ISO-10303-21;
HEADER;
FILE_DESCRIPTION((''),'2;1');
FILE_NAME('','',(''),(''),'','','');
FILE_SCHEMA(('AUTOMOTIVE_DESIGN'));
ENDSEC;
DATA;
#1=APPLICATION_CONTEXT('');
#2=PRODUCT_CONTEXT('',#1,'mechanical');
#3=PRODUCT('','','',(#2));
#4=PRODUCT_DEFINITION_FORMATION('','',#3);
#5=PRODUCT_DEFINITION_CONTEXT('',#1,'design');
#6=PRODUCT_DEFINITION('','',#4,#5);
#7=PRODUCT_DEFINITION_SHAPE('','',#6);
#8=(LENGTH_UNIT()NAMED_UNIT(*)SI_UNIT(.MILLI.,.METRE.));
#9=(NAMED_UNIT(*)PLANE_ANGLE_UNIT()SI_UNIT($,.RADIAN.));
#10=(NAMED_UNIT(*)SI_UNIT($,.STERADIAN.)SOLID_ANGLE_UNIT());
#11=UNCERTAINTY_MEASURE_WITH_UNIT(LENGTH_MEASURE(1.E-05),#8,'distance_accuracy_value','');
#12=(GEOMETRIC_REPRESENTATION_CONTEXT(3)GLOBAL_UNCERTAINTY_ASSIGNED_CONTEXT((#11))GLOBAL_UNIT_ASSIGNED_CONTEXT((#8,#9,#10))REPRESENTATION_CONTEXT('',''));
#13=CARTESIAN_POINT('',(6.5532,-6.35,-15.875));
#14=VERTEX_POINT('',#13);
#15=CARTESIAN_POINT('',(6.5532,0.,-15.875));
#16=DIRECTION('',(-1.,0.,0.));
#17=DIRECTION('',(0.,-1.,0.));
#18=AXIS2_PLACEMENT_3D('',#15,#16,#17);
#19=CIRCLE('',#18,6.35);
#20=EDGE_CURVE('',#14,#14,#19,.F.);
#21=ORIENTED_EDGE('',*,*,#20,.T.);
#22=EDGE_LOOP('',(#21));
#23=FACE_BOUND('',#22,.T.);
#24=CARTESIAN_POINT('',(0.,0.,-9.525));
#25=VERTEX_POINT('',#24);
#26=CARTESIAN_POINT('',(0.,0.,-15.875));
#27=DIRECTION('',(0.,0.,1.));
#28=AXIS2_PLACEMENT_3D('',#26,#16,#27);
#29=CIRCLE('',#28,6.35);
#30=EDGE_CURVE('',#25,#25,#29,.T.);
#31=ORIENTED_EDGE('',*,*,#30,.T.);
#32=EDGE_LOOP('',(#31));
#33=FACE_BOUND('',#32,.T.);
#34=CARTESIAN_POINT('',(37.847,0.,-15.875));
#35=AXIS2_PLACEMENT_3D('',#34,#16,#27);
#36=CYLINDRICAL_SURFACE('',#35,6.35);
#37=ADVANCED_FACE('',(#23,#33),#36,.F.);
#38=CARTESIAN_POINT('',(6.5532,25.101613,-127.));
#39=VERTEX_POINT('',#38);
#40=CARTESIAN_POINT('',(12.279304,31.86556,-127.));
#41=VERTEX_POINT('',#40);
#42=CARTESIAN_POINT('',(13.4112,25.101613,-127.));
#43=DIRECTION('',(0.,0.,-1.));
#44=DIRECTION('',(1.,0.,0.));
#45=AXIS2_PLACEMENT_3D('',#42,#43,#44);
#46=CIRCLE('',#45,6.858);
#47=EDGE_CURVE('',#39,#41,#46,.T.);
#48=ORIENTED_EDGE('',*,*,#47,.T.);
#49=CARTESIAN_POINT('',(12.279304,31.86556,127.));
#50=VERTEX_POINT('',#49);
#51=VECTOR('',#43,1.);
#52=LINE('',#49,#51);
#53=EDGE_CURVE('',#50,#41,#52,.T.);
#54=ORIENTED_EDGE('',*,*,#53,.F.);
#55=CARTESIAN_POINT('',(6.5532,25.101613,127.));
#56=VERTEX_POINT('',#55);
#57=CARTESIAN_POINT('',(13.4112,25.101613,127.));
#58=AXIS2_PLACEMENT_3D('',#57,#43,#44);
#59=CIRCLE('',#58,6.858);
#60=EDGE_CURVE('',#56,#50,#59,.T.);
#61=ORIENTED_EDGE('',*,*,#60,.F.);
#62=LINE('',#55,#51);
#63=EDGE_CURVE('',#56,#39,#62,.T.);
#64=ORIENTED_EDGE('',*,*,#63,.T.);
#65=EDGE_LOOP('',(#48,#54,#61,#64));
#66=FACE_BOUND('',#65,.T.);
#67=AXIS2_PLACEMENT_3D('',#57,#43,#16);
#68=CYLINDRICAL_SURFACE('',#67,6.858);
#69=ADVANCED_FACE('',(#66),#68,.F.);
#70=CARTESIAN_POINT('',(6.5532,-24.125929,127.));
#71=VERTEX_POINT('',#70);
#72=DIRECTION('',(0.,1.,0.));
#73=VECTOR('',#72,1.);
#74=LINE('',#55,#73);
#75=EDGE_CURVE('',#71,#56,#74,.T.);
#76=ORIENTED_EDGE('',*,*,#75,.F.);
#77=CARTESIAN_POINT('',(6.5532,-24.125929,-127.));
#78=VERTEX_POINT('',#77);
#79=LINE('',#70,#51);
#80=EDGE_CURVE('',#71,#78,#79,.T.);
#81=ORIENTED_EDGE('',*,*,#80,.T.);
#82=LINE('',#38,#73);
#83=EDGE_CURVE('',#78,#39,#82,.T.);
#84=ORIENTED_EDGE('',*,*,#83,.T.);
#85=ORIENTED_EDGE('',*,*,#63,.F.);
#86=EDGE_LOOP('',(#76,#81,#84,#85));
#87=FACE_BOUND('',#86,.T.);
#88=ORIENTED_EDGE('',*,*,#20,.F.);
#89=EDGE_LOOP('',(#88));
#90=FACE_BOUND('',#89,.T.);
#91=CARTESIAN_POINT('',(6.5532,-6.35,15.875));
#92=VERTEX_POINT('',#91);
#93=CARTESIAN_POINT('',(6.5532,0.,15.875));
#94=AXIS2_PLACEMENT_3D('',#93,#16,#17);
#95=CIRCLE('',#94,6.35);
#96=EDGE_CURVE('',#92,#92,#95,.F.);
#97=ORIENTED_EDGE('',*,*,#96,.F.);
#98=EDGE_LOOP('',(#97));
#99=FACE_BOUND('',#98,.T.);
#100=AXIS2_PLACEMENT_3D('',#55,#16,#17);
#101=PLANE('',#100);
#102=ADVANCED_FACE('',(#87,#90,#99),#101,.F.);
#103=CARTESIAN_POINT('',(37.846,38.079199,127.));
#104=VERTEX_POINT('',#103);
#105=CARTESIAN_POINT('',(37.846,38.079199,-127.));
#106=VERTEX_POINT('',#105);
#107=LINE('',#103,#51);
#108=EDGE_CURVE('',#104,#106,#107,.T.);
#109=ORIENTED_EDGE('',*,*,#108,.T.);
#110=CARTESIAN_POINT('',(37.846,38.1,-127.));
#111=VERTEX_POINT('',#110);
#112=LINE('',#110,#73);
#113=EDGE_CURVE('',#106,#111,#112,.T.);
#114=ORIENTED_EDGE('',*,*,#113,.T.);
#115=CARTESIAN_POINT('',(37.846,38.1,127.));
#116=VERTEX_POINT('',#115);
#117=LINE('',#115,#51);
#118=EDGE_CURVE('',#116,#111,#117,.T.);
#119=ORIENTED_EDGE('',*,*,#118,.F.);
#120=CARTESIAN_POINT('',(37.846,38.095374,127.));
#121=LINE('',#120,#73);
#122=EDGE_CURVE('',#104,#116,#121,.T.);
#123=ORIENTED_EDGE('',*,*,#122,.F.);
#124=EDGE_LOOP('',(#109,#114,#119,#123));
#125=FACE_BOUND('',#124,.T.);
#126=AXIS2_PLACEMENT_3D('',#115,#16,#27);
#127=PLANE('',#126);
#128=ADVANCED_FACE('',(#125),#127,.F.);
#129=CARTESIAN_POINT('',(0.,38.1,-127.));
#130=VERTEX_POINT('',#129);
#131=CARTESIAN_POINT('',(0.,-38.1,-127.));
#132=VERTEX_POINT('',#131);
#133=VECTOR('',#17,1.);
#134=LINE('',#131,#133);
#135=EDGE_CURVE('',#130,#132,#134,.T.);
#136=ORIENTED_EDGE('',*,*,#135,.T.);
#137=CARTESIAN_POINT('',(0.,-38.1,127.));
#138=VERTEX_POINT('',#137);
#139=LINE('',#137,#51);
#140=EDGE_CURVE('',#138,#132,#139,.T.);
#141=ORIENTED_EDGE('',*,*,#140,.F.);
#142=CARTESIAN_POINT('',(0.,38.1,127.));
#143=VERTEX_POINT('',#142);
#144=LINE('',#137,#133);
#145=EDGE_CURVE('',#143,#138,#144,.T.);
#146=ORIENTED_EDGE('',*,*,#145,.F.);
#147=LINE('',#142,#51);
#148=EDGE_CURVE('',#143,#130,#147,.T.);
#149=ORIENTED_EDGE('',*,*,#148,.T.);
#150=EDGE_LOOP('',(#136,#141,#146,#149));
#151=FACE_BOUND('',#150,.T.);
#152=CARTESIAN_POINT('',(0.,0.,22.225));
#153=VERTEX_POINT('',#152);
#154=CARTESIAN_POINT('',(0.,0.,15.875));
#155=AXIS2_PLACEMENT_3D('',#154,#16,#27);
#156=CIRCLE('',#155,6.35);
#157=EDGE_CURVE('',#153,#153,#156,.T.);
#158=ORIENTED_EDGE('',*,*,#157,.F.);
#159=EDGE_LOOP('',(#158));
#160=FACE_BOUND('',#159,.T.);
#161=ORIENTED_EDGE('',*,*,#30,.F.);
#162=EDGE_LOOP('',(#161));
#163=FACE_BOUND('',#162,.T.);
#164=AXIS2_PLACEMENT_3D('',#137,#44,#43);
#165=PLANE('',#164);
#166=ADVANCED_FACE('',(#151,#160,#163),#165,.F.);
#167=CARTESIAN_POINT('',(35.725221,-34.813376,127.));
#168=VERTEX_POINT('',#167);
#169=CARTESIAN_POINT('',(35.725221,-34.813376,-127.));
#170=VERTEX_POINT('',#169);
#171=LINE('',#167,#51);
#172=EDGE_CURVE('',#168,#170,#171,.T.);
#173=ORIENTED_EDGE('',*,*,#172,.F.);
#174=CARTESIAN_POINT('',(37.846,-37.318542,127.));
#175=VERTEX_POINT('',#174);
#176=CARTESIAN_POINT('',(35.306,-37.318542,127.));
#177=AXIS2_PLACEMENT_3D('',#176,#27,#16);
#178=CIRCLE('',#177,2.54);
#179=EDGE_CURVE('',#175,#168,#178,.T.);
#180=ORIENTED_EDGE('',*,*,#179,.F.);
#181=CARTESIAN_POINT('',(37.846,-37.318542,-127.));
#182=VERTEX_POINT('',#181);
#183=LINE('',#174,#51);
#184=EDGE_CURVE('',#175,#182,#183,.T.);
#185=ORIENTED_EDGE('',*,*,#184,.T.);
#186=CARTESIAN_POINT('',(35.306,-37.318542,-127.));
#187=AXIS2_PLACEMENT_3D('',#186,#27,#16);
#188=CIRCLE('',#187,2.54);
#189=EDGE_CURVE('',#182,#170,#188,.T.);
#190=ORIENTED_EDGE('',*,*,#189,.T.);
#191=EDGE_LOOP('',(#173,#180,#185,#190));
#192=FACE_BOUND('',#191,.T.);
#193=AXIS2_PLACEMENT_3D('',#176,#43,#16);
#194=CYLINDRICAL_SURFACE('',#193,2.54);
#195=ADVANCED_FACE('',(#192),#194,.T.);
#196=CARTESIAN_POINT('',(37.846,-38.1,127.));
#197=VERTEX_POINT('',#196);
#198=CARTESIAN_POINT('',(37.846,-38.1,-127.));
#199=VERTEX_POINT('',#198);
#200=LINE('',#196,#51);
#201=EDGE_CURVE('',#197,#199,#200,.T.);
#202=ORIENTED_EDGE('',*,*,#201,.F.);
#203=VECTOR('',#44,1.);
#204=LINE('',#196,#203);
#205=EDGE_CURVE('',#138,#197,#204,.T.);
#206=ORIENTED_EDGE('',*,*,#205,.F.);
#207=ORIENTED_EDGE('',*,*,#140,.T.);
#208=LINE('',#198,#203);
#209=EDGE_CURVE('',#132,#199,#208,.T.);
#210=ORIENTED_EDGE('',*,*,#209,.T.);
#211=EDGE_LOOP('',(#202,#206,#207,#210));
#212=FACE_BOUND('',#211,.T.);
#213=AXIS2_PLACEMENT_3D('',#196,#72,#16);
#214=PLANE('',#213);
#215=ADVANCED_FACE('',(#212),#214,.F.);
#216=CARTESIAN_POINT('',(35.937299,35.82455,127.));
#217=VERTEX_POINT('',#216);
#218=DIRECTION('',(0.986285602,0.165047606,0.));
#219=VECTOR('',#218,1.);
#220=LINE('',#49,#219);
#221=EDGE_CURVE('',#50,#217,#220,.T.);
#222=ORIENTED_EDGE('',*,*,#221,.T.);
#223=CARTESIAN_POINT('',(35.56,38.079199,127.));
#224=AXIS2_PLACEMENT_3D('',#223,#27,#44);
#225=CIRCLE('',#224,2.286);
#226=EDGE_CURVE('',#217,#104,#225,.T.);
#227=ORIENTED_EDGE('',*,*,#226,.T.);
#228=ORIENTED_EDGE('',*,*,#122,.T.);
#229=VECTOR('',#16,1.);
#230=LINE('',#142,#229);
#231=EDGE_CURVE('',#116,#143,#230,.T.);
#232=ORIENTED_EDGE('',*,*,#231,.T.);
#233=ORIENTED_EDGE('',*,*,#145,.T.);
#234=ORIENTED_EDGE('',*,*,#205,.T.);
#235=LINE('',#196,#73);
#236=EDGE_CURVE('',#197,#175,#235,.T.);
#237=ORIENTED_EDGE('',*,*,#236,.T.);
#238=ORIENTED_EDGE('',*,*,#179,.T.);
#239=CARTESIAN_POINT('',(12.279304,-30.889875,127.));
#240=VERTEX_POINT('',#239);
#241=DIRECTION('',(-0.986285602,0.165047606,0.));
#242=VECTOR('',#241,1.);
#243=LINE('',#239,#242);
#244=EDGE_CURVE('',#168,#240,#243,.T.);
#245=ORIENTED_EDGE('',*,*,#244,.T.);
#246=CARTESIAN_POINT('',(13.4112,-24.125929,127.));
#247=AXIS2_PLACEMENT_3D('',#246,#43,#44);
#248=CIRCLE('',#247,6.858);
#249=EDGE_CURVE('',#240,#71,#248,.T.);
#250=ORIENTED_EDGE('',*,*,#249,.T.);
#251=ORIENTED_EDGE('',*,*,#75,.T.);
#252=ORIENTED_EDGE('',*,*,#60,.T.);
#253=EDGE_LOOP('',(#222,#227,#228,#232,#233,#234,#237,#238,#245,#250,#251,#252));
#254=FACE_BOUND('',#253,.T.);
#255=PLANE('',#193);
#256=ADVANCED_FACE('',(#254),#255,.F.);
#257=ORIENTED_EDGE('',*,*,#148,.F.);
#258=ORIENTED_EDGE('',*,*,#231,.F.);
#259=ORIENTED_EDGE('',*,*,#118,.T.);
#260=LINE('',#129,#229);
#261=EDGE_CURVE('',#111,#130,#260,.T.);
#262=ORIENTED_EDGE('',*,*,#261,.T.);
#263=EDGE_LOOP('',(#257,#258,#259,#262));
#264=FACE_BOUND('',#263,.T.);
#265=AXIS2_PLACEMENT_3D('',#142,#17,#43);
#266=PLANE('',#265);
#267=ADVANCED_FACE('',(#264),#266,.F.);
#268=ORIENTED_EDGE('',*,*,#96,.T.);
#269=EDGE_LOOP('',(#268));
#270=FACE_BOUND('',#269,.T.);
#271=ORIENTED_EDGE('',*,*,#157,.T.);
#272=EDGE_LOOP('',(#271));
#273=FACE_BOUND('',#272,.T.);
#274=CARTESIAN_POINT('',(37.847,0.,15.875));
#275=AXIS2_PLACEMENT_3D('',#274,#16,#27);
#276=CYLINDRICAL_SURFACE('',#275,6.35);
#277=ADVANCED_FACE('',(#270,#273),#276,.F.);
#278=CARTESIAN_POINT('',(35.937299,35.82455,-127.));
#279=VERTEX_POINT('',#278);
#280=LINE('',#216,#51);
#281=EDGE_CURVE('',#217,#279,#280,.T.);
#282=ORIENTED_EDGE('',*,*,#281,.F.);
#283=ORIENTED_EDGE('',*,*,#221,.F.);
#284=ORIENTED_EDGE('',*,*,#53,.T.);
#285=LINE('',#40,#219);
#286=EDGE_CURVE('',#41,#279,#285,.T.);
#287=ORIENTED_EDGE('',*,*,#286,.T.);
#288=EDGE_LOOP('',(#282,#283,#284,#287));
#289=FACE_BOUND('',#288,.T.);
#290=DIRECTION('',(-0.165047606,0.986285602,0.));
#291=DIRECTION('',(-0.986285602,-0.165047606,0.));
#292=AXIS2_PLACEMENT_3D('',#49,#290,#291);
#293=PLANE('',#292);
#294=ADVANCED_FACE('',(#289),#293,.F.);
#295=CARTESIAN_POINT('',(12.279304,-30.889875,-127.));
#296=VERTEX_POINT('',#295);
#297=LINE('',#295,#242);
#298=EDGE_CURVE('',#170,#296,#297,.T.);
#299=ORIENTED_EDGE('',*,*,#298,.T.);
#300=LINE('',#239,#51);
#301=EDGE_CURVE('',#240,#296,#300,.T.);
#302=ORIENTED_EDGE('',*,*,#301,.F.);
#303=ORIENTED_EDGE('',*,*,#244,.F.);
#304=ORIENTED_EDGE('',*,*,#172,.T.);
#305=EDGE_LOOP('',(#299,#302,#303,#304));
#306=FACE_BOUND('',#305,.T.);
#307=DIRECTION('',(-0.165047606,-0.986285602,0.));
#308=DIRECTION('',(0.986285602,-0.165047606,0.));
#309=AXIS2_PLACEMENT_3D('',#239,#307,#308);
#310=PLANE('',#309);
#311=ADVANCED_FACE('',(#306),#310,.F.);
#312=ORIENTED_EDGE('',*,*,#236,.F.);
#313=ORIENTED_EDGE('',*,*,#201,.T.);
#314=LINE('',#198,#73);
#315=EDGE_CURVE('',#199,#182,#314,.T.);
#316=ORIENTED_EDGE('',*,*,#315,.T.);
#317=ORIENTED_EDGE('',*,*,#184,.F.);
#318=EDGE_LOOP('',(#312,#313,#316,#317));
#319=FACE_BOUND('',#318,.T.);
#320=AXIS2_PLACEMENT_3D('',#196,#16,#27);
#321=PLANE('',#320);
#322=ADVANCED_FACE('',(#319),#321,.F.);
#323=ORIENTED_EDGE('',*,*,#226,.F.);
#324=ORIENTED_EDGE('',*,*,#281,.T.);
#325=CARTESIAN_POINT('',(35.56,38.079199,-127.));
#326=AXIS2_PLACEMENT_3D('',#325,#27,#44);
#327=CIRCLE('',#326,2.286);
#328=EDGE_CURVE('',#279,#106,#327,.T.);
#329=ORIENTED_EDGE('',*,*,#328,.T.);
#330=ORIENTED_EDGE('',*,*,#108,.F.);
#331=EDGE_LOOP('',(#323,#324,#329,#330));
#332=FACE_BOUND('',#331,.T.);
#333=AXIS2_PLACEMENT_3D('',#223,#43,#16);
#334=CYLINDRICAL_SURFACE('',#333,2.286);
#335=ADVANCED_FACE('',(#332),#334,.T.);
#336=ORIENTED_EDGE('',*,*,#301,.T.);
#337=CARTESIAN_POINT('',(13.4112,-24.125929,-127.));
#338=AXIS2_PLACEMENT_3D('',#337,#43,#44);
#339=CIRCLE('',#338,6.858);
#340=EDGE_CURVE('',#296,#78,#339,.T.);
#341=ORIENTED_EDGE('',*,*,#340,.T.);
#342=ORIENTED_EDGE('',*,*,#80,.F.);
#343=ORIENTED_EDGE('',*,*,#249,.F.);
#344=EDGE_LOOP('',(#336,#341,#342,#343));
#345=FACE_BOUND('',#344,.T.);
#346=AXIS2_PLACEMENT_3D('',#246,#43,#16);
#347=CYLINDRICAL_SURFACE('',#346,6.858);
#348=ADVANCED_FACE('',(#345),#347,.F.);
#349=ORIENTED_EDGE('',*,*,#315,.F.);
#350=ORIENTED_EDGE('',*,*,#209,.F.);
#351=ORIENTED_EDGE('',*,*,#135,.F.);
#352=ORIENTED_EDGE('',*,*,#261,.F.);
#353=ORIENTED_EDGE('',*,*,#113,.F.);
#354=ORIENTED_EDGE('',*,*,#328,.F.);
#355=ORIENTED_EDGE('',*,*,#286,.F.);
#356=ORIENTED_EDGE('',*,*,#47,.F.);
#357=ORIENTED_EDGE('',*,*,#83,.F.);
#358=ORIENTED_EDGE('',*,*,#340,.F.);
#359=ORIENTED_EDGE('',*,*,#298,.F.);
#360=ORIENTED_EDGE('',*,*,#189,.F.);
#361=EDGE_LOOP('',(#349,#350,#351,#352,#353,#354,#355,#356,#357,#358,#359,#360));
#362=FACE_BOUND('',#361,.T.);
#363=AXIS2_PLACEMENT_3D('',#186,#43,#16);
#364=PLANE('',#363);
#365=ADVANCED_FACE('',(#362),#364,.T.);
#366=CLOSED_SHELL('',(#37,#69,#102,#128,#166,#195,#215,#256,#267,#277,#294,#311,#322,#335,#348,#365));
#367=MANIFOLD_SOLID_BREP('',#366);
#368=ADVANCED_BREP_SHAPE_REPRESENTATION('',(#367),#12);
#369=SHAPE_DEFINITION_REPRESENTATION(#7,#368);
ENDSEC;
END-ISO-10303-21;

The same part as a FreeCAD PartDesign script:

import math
import FreeCAD as App
import Part
import Sketcher
from FreeCAD import Vector
Q = App.Units.Quantity

doc = App.newDocument("Part")
body = doc.addObject("PartDesign::Body", "Body")

# Sketch on XY plane
sketch1 = body.newObject("Sketcher::SketchObject", "Sketch")
sketch1.AttachmentSupport = (doc.getObject("XY_Plane"), [""])
sketch1.MapMode = "FlatFace"
sketch1.addGeometry([
    Part.LineSegment(Vector(0, -38.1, 0), Vector(37.846, -38.1, 0)),  # 0
    Part.LineSegment(Vector(37.846, -38.1, 0), Vector(37.846, -37.319, 0)),  # 1
    Part.ArcOfCircle(Part.Circle(Vector(35.306, -37.319, 0), Vector(0, 0, 1), 2.54), math.radians(0), math.radians(80)),  # 2
    Part.LineSegment(Vector(35.725, -34.813, 0), Vector(12.279, -30.89, 0)),  # 3
    Part.ArcOfCircle(Part.Circle(Vector(13.411, -24.126, 0), Vector(0, 0, 1), 6.858), math.radians(180), math.radians(260)),  # 4
    Part.LineSegment(Vector(6.553, -24.126, 0), Vector(6.553, 25.102, 0)),  # 5
    Part.ArcOfCircle(Part.Circle(Vector(13.411, 25.102, 0), Vector(0, 0, 1), 6.858), math.radians(100), math.radians(180)),  # 6
    Part.LineSegment(Vector(12.279, 31.866, 0), Vector(35.937, 35.825, 0)),  # 7
    Part.ArcOfCircle(Part.Circle(Vector(35.56, 38.079, 0), Vector(0, 0, 1), 2.286), math.radians(-80), math.radians(0)),  # 8
    Part.LineSegment(Vector(37.846, 38.079, 0), Vector(37.846, 38.1, 0)),  # 9
    Part.LineSegment(Vector(37.846, 38.1, 0), Vector(0, 38.1, 0)),  # 10
    Part.LineSegment(Vector(0, 38.1, 0), Vector(0, -38.1, 0)),  # 11
], False)
sketch1.addConstraint([
    Sketcher.Constraint("Coincident", 0, 2, 1, 1),
    Sketcher.Constraint("Tangent", 1, 2, 2, 1),
    Sketcher.Constraint("Tangent", 2, 2, 3, 1),
    Sketcher.Constraint("Tangent", 3, 2, 4, 2),
    Sketcher.Constraint("Tangent", 4, 1, 5, 1),
    Sketcher.Constraint("Tangent", 5, 2, 6, 2),
    Sketcher.Constraint("Tangent", 6, 1, 7, 1),
    Sketcher.Constraint("Tangent", 7, 2, 8, 1),
    Sketcher.Constraint("Tangent", 8, 2, 9, 1),
    Sketcher.Constraint("Coincident", 9, 2, 10, 1),
    Sketcher.Constraint("Coincident", 10, 2, 11, 1),
    Sketcher.Constraint("Coincident", 11, 2, 0, 1),
    Sketcher.Constraint("Horizontal", 0),
    Sketcher.Constraint("Vertical", 1),
    Sketcher.Constraint("Vertical", 5),
    Sketcher.Constraint("Vertical", 9),
    Sketcher.Constraint("Horizontal", 10),
    Sketcher.Constraint("Vertical", 11),
    Sketcher.Constraint("Equal", 4, 6),
    Sketcher.Constraint("Symmetric", 10, 2, 11, 2, -1, 1),
    Sketcher.Constraint("Vertical", 3, 2, 6, 1),
    Sketcher.Constraint("Vertical", 1, 2, 8, 2),
    Sketcher.Constraint("Radius", 2, Q("0.1 in")),
    Sketcher.Constraint("DistanceY", 11, 2, 11, 1, Q("3 in")),
    Sketcher.Constraint("Radius", 4, Q("0.27 in")),
    Sketcher.Constraint("Radius", 8, Q("0.09 in")),
    Sketcher.Constraint("DistanceX", 0, 1, 0, 2, Q("1.49 in")),
    Sketcher.Constraint("Angle", 3, Q("170.5 deg")),
    Sketcher.Constraint("DistanceX", -1, 1, 4, 3, Q("0.528 in")),
    Sketcher.Constraint("DistanceY", 9, 1, 9, 2, Q("0.020801 mm")),
    Sketcher.Constraint("DistanceY", 1, 1, 1, 2, Q("0.781458 mm")),
])
pad1 = body.newObject("PartDesign::Pad", "Pad")
pad1.Profile = sketch1
pad1.Length = Q("10 in")
pad1.Midplane = True

# Sketch on YZ plane
sketch2 = body.newObject("Sketcher::SketchObject", "Sketch001")
sketch2.AttachmentSupport = (doc.getObject("YZ_Plane"), [""])
sketch2.MapMode = "FlatFace"
sketch2.addGeometry(Part.Circle(Vector(0, -16, 0), Vector(0, 0, 1), 6), False)
sketch2.addConstraint([
    Sketcher.Constraint("PointOnObject", 0, 3, -2),
    Sketcher.Constraint("Diameter", 0, Q("0.5 in")),
    Sketcher.Constraint("DistanceY", 0, 3, -1, 1, Q("0.625 in")),
])
pocket1 = body.newObject("PartDesign::Pocket", "Pocket")
pocket1.Profile = sketch2
pocket1.Type = "UpToFirst"
pocket1.Reversed = True

# Sketch on YZ plane
sketch3 = body.newObject("Sketcher::SketchObject", "Sketch002")
sketch3.AttachmentSupport = (doc.getObject("YZ_Plane"), [""])
sketch3.MapMode = "FlatFace"
sketch3.addGeometry(Part.Circle(Vector(0, 16, 0), Vector(0, 0, 1), 6), False)
sketch3.addConstraint([
    Sketcher.Constraint("PointOnObject", 0, 3, -2),
    Sketcher.Constraint("Diameter", 0, Q("0.5 in")),
    Sketcher.Constraint("DistanceY", -1, 1, 0, 3, Q("0.625 in")),
])
pocket2 = body.newObject("PartDesign::Pocket", "Pocket001")
pocket2.Profile = sketch3
pocket2.Type = "UpToFirst"
pocket2.Reversed = True

doc.recompute()
